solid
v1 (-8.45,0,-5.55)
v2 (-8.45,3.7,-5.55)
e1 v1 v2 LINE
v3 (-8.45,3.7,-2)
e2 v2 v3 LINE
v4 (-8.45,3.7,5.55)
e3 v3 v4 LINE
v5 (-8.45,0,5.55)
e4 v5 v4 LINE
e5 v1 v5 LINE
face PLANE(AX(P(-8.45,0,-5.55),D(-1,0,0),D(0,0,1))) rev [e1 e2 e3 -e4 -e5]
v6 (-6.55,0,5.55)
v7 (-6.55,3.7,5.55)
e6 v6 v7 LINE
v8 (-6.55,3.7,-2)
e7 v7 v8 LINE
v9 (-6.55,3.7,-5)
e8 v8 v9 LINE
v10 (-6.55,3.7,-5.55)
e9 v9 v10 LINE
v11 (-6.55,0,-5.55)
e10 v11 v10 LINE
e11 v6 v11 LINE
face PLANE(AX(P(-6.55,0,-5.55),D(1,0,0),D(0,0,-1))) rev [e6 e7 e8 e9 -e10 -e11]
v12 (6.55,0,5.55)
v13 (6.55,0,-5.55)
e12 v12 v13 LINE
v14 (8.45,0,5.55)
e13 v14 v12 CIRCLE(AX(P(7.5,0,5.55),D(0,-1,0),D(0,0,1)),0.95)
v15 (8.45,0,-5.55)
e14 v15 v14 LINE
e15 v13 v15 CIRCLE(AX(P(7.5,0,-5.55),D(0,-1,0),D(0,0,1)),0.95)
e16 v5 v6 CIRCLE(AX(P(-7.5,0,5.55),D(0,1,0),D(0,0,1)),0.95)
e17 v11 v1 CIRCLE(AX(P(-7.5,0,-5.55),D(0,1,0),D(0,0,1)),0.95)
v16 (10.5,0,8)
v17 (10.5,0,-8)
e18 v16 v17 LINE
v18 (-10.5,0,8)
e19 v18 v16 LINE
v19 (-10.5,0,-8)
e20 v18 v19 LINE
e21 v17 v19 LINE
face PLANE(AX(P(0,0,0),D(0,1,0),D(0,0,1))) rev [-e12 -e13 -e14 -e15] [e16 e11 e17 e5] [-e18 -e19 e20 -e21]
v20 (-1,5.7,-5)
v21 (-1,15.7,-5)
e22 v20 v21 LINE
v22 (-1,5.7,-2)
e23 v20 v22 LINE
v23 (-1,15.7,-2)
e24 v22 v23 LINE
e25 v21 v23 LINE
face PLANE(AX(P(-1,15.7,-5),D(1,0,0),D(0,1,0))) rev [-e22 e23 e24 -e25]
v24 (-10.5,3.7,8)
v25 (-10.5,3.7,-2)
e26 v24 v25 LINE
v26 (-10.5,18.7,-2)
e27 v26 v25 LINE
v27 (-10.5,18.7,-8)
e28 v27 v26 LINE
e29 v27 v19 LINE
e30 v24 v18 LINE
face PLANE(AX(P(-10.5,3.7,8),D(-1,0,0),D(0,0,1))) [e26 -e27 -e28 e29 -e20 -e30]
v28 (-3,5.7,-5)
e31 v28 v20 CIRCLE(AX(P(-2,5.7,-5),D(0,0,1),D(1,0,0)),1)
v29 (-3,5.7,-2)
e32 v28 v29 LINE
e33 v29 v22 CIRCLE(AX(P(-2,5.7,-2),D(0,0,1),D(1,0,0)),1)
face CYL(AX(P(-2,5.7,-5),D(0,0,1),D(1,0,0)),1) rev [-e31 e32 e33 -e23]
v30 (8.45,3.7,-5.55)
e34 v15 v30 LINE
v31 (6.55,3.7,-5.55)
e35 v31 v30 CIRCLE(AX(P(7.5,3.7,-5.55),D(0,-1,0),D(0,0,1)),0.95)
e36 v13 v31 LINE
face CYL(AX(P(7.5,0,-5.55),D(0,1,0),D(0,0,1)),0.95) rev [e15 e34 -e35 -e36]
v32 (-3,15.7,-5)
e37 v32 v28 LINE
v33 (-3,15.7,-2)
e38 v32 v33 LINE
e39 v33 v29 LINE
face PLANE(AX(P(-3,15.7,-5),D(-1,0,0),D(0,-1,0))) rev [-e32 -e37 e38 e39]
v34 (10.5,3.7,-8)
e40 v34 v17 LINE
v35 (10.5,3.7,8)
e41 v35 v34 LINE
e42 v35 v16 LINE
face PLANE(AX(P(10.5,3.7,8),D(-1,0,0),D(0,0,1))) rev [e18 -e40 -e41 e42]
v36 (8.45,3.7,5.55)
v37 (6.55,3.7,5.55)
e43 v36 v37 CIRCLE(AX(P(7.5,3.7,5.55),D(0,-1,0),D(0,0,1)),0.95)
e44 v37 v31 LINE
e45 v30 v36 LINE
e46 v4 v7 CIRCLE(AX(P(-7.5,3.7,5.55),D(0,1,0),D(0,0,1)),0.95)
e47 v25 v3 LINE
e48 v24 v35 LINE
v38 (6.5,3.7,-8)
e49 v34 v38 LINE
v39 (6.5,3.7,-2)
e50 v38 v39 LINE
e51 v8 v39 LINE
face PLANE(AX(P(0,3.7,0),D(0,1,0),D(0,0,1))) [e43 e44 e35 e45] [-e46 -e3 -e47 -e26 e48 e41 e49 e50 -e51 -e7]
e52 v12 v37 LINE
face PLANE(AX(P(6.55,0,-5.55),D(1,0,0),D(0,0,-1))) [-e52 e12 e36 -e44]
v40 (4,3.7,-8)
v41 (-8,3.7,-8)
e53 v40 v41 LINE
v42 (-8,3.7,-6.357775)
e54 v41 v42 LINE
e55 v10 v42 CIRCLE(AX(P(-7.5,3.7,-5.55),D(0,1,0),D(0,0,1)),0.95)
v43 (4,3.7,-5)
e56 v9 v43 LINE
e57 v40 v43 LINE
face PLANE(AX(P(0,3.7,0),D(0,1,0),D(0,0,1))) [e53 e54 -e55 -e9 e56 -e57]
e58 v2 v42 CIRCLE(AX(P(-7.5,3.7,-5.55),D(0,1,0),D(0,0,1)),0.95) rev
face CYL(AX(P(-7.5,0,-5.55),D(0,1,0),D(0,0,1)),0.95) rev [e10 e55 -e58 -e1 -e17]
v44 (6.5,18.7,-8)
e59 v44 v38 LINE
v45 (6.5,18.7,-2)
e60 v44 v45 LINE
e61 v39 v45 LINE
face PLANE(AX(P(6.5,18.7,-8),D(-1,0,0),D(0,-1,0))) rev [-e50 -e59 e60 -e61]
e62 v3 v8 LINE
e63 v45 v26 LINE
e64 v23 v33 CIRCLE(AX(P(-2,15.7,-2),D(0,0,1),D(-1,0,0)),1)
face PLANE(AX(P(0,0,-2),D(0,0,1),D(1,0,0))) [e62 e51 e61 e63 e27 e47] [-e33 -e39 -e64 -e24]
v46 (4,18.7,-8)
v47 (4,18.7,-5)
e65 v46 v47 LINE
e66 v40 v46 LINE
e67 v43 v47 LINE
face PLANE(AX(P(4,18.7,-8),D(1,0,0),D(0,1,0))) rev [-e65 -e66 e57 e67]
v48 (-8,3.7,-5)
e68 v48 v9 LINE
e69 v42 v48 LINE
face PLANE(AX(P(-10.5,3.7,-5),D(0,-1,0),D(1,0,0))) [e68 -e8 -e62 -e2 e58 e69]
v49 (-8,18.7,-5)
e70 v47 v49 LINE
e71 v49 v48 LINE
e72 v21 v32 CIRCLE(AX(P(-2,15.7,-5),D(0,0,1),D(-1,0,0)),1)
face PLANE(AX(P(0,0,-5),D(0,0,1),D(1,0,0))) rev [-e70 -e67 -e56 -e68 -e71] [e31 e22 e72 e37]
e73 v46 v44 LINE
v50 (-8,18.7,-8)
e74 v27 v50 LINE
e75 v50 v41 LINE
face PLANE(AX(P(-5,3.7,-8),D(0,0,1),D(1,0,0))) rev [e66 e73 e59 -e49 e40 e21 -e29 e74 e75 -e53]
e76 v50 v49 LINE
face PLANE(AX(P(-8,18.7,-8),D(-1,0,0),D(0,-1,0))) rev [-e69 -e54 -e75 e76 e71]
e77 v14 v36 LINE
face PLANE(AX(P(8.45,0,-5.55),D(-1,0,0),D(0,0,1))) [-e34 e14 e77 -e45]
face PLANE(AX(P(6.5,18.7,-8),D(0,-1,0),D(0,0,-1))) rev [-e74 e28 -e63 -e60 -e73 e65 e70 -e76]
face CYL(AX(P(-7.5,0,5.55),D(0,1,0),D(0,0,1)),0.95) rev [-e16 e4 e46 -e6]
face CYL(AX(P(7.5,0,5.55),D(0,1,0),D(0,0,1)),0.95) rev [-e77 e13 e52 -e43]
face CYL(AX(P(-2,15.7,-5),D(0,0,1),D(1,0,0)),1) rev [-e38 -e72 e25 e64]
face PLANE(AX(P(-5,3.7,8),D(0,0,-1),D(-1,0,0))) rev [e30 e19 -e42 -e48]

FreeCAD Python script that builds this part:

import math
import FreeCAD as App
import Part
import Sketcher
from FreeCAD import Vector
Q = App.Units.Quantity


def add_polygon(sketch, points):
    """Adds a closed chain of lines whose ends are joined by coincident constraints."""
    first, n = sketch.GeometryCount, len(points)
    for a, b in zip(points, points[1:] + points[:1]):
        sketch.addGeometry(Part.LineSegment(App.Vector(*a, 0), App.Vector(*b, 0)), False)
    for i in range(n):
        sketch.addConstraint(Sketcher.Constraint("Coincident", first + i, 2, first + (i + 1) % n, 1))

doc = App.newDocument("Part")
body = doc.addObject("PartDesign::Body", "Body")

sketch1 = body.newObject("Sketcher::SketchObject", "Sketch")
sketch1.AttachmentSupport = (doc.getObject("XZ_Plane"), [""])
sketch1.MapMode = "FlatFace"
add_polygon(sketch1, [(-5, -8), (-5, 8), (5, 8), (5, -8)])
sketch1.addConstraint([
    Sketcher.Constraint("Vertical", 0),
    Sketcher.Constraint("Horizontal", 1),
    Sketcher.Constraint("Vertical", 2),
    Sketcher.Constraint("Horizontal", 3),
    Sketcher.Constraint("Symmetric", 0, 2, 2, 2, -1, 1),
    Sketcher.Constraint("DistanceX", 1, 1, 1, 2, Q("10 mm")),
    Sketcher.Constraint("DistanceY", 0, 1, 0, 2, Q("16 mm")),
])
pad1 = body.newObject("PartDesign::Pad", "Pad")
pad1.Profile = sketch1
pad1.Length = 3.7
pad1.Reversed = True

sketch2 = body.newObject("Sketcher::SketchObject", "Sketch001")
sketch2.AttachmentSupport = (doc.getObject("XZ_Plane"), [""])
sketch2.MapMode = "FlatFace"
add_polygon(sketch2, [(-10, 8), (-10, -8), (-5, -8), (-5, 8)])
sketch2.addConstraint([
    Sketcher.Constraint("Vertical", 0),
    Sketcher.Constraint("Horizontal", 1),
    Sketcher.Constraint("Vertical", 2),
    Sketcher.Constraint("Horizontal", 3),
    Sketcher.Constraint("DistanceY", 0, 2, 0, 1, Q("16 mm")),
    Sketcher.Constraint("DistanceX", 1, 1, 1, 2, Q("5.5 mm")),
    Sketcher.Constraint("DistanceY", 0, 2, -1, 1, Q("8 mm")),
    Sketcher.Constraint("DistanceX", 1, 2, -1, 1, Q("5 mm")),
])
pad2 = body.newObject("PartDesign::Pad", "Pad001")
pad2.Profile = sketch2
pad2.Length = 3.7
pad2.Reversed = True

sketch3 = body.newObject("Sketcher::SketchObject", "Sketch002")
sketch3.AttachmentSupport = (doc.getObject("XZ_Plane"), [""])
sketch3.MapMode = "FlatFace"
sketch3.AttachmentOffset = App.Placement(Vector(0, 0, -3.7), App.Rotation())
sketch3.addGeometry([
    Part.LineSegment(Vector(-6.5, 5.5, 0), Vector(-6.5, -5.5, 0)),
    Part.ArcOfCircle(Part.Circle(Vector(-7.5, -5.5, 0), Vector(0, 0, 1), 0.9), math.radians(180), math.radians(360)),
    Part.LineSegment(Vector(-8.4, -5.5, 0), Vector(-8.4, 5.5, 0)),
    Part.ArcOfCircle(Part.Circle(Vector(-7.5, 5.5, 0), Vector(0, 0, 1), 0.9), math.radians(0), math.radians(180)),
], False)
sketch3.addConstraint([
    Sketcher.Constraint("Tangent", 0, 2, 1, 2),
    Sketcher.Constraint("Tangent", 1, 1, 2, 1),
    Sketcher.Constraint("Tangent", 2, 2, 3, 2),
    Sketcher.Constraint("Tangent", 3, 1, 0, 1),
    Sketcher.Constraint("Vertical", 0),
    Sketcher.Constraint("Vertical", 2),
    Sketcher.Constraint("Radius", 1, Q("0.95 mm")),
    Sketcher.Constraint("DistanceY", 0, 2, 0, 1, Q("11.1 mm")),
    Sketcher.Constraint("DistanceX", 1, 3, -1, 1, Q("7.5 mm")),
    Sketcher.Constraint("DistanceY", 1, 3, -1, 1, Q("5.55 mm")),
])
pocket1 = body.newObject("PartDesign::Pocket", "Pocket")
pocket1.Profile = sketch3
pocket1.Type = "ThroughAll"
pocket1.Reversed = True
doc.recompute()

mirrored = body.newObject("PartDesign::Mirrored", "Mirrored")
mirrored.Originals = [pad2, pocket1]
mirrored.MirrorPlane = (doc.getObject("YZ_Plane"), [""])
body.Tip = mirrored
body2 = doc.addObject("PartDesign::Body", "Body001")

sketch4 = body2.newObject("Sketcher::SketchObject", "Sketch003")
sketch4.AttachmentSupport = (doc.getObject("XY_Plane001"), [""])
sketch4.MapMode = "FlatFace"
sketch4.AttachmentOffset = App.Placement(Vector(0, 0, -2), App.Rotation())
add_polygon(sketch4, [(-10.5, 18.7), (-10.5, 3.7), (6.5, 3.7), (6.5, 18.7)])
sketch4.addGeometry(Part.LineSegment(Vector(-3, 5.7, 0), Vector(-3, 15.7, 0)), False)
sketch4.addGeometry(Part.ArcOfCircle(Part.Circle(Vector(-2, 15.7, 0), Vector(0, 0, 1), 1), math.radians(0), math.radians(180)), False)
sketch4.addGeometry(Part.LineSegment(Vector(-1, 15.7, 0), Vector(-1, 5.7, 0)), False)
sketch4.addGeometry(Part.ArcOfCircle(Part.Circle(Vector(-2, 5.7, 0), Vector(0, 0, 1), 1), math.radians(180), math.radians(360)), False)
sketch4.addConstraint([
    Sketcher.Constraint("Tangent", 4, 2, 5, 2),
    Sketcher.Constraint("Tangent", 5, 1, 6, 1),
    Sketcher.Constraint("Tangent", 6, 2, 7, 2),
    Sketcher.Constraint("Tangent", 7, 1, 4, 1),
    Sketcher.Constraint("Vertical", 0),
    Sketcher.Constraint("Horizontal", 1),
    Sketcher.Constraint("Vertical", 2),
    Sketcher.Constraint("Horizontal", 3),
    Sketcher.Constraint("Vertical", 4),
    Sketcher.Constraint("Vertical", 6),
    Sketcher.Constraint("Radius", 5, Q("1 mm")),
    Sketcher.Constraint("DistanceX", 1, 1, 1, 2, Q("17 mm")),
    Sketcher.Constraint("DistanceY", 0, 2, 0, 1, Q("15 mm")),
    Sketcher.Constraint("DistanceY", 4, 1, 4, 2, Q("10 mm")),
    Sketcher.Constraint("DistanceX", 5, 3, -1, 1, Q("2 mm")),
    Sketcher.Constraint("DistanceY", 0, 2, 7, 3, Q("2 mm")),
    Sketcher.Constraint("DistanceY", -1, 1, 5, 3, Q("15.7 mm")),
    Sketcher.Constraint("DistanceX", 0, 2, -1, 1, Q("10.5 mm")),
])
pad3 = body2.newObject("PartDesign::Pad", "Pad002")
pad3.Profile = sketch4
pad3.Length = 3
pad3.Reversed = True
doc.recompute()

boolean = body.newObject("PartDesign::Boolean", "Boolean")
boolean.Type = "Fuse"
boolean.addObjects([body2])

sketch5 = body.newObject("Sketcher::SketchObject", "Sketch004")
sketch5.AttachmentSupport = (doc.getObject("XY_Plane"), [""])
sketch5.MapMode = "FlatFace"
sketch5.AttachmentOffset = App.Placement(Vector(0, 0, -5), App.Rotation())
add_polygon(sketch5, [(6.5, 18.7), (6.5, 3.7), (4, 3.7), (4, 18.7)])
add_polygon(sketch5, [(-8, 18.7), (-8, 3.7), (-10.5, 3.7), (-10.5, 18.7)])
sketch5.addConstraint([
    Sketcher.Constraint("Vertical", 0),
    Sketcher.Constraint("Horizontal", 1),
    Sketcher.Constraint("Vertical", 2),
    Sketcher.Constraint("Horizontal", 3),
    Sketcher.Constraint("Vertical", 4),
    Sketcher.Constraint("Horizontal", 5),
    Sketcher.Constraint("Vertical", 6),
    Sketcher.Constraint("Horizontal", 7),
    Sketcher.Constraint("Horizontal", 1, 2, 4, 2),
    Sketcher.Constraint("Horizontal", 3, 2, 6, 2),
    Sketcher.Constraint("Equal", 3, 5),
    Sketcher.Constraint("DistanceY", 0, 2, 0, 1, Q("15 mm")),
    Sketcher.Constraint("DistanceX", 1, 2, 1, 1, Q("2.5 mm")),
    Sketcher.Constraint("DistanceX", -1, 1, 1, 2, Q("4 mm")),
    Sketcher.Constraint("DistanceX", 4, 2, -1, 1, Q("8 mm")),
    Sketcher.Constraint("DistanceY", -1, 1, 0, 2, Q("3.7 mm")),
])
pad4 = body.newObject("PartDesign::Pad", "Pad003")
pad4.Profile = sketch5
pad4.Length = 3
pad4.Reversed = True

doc.recompute()
